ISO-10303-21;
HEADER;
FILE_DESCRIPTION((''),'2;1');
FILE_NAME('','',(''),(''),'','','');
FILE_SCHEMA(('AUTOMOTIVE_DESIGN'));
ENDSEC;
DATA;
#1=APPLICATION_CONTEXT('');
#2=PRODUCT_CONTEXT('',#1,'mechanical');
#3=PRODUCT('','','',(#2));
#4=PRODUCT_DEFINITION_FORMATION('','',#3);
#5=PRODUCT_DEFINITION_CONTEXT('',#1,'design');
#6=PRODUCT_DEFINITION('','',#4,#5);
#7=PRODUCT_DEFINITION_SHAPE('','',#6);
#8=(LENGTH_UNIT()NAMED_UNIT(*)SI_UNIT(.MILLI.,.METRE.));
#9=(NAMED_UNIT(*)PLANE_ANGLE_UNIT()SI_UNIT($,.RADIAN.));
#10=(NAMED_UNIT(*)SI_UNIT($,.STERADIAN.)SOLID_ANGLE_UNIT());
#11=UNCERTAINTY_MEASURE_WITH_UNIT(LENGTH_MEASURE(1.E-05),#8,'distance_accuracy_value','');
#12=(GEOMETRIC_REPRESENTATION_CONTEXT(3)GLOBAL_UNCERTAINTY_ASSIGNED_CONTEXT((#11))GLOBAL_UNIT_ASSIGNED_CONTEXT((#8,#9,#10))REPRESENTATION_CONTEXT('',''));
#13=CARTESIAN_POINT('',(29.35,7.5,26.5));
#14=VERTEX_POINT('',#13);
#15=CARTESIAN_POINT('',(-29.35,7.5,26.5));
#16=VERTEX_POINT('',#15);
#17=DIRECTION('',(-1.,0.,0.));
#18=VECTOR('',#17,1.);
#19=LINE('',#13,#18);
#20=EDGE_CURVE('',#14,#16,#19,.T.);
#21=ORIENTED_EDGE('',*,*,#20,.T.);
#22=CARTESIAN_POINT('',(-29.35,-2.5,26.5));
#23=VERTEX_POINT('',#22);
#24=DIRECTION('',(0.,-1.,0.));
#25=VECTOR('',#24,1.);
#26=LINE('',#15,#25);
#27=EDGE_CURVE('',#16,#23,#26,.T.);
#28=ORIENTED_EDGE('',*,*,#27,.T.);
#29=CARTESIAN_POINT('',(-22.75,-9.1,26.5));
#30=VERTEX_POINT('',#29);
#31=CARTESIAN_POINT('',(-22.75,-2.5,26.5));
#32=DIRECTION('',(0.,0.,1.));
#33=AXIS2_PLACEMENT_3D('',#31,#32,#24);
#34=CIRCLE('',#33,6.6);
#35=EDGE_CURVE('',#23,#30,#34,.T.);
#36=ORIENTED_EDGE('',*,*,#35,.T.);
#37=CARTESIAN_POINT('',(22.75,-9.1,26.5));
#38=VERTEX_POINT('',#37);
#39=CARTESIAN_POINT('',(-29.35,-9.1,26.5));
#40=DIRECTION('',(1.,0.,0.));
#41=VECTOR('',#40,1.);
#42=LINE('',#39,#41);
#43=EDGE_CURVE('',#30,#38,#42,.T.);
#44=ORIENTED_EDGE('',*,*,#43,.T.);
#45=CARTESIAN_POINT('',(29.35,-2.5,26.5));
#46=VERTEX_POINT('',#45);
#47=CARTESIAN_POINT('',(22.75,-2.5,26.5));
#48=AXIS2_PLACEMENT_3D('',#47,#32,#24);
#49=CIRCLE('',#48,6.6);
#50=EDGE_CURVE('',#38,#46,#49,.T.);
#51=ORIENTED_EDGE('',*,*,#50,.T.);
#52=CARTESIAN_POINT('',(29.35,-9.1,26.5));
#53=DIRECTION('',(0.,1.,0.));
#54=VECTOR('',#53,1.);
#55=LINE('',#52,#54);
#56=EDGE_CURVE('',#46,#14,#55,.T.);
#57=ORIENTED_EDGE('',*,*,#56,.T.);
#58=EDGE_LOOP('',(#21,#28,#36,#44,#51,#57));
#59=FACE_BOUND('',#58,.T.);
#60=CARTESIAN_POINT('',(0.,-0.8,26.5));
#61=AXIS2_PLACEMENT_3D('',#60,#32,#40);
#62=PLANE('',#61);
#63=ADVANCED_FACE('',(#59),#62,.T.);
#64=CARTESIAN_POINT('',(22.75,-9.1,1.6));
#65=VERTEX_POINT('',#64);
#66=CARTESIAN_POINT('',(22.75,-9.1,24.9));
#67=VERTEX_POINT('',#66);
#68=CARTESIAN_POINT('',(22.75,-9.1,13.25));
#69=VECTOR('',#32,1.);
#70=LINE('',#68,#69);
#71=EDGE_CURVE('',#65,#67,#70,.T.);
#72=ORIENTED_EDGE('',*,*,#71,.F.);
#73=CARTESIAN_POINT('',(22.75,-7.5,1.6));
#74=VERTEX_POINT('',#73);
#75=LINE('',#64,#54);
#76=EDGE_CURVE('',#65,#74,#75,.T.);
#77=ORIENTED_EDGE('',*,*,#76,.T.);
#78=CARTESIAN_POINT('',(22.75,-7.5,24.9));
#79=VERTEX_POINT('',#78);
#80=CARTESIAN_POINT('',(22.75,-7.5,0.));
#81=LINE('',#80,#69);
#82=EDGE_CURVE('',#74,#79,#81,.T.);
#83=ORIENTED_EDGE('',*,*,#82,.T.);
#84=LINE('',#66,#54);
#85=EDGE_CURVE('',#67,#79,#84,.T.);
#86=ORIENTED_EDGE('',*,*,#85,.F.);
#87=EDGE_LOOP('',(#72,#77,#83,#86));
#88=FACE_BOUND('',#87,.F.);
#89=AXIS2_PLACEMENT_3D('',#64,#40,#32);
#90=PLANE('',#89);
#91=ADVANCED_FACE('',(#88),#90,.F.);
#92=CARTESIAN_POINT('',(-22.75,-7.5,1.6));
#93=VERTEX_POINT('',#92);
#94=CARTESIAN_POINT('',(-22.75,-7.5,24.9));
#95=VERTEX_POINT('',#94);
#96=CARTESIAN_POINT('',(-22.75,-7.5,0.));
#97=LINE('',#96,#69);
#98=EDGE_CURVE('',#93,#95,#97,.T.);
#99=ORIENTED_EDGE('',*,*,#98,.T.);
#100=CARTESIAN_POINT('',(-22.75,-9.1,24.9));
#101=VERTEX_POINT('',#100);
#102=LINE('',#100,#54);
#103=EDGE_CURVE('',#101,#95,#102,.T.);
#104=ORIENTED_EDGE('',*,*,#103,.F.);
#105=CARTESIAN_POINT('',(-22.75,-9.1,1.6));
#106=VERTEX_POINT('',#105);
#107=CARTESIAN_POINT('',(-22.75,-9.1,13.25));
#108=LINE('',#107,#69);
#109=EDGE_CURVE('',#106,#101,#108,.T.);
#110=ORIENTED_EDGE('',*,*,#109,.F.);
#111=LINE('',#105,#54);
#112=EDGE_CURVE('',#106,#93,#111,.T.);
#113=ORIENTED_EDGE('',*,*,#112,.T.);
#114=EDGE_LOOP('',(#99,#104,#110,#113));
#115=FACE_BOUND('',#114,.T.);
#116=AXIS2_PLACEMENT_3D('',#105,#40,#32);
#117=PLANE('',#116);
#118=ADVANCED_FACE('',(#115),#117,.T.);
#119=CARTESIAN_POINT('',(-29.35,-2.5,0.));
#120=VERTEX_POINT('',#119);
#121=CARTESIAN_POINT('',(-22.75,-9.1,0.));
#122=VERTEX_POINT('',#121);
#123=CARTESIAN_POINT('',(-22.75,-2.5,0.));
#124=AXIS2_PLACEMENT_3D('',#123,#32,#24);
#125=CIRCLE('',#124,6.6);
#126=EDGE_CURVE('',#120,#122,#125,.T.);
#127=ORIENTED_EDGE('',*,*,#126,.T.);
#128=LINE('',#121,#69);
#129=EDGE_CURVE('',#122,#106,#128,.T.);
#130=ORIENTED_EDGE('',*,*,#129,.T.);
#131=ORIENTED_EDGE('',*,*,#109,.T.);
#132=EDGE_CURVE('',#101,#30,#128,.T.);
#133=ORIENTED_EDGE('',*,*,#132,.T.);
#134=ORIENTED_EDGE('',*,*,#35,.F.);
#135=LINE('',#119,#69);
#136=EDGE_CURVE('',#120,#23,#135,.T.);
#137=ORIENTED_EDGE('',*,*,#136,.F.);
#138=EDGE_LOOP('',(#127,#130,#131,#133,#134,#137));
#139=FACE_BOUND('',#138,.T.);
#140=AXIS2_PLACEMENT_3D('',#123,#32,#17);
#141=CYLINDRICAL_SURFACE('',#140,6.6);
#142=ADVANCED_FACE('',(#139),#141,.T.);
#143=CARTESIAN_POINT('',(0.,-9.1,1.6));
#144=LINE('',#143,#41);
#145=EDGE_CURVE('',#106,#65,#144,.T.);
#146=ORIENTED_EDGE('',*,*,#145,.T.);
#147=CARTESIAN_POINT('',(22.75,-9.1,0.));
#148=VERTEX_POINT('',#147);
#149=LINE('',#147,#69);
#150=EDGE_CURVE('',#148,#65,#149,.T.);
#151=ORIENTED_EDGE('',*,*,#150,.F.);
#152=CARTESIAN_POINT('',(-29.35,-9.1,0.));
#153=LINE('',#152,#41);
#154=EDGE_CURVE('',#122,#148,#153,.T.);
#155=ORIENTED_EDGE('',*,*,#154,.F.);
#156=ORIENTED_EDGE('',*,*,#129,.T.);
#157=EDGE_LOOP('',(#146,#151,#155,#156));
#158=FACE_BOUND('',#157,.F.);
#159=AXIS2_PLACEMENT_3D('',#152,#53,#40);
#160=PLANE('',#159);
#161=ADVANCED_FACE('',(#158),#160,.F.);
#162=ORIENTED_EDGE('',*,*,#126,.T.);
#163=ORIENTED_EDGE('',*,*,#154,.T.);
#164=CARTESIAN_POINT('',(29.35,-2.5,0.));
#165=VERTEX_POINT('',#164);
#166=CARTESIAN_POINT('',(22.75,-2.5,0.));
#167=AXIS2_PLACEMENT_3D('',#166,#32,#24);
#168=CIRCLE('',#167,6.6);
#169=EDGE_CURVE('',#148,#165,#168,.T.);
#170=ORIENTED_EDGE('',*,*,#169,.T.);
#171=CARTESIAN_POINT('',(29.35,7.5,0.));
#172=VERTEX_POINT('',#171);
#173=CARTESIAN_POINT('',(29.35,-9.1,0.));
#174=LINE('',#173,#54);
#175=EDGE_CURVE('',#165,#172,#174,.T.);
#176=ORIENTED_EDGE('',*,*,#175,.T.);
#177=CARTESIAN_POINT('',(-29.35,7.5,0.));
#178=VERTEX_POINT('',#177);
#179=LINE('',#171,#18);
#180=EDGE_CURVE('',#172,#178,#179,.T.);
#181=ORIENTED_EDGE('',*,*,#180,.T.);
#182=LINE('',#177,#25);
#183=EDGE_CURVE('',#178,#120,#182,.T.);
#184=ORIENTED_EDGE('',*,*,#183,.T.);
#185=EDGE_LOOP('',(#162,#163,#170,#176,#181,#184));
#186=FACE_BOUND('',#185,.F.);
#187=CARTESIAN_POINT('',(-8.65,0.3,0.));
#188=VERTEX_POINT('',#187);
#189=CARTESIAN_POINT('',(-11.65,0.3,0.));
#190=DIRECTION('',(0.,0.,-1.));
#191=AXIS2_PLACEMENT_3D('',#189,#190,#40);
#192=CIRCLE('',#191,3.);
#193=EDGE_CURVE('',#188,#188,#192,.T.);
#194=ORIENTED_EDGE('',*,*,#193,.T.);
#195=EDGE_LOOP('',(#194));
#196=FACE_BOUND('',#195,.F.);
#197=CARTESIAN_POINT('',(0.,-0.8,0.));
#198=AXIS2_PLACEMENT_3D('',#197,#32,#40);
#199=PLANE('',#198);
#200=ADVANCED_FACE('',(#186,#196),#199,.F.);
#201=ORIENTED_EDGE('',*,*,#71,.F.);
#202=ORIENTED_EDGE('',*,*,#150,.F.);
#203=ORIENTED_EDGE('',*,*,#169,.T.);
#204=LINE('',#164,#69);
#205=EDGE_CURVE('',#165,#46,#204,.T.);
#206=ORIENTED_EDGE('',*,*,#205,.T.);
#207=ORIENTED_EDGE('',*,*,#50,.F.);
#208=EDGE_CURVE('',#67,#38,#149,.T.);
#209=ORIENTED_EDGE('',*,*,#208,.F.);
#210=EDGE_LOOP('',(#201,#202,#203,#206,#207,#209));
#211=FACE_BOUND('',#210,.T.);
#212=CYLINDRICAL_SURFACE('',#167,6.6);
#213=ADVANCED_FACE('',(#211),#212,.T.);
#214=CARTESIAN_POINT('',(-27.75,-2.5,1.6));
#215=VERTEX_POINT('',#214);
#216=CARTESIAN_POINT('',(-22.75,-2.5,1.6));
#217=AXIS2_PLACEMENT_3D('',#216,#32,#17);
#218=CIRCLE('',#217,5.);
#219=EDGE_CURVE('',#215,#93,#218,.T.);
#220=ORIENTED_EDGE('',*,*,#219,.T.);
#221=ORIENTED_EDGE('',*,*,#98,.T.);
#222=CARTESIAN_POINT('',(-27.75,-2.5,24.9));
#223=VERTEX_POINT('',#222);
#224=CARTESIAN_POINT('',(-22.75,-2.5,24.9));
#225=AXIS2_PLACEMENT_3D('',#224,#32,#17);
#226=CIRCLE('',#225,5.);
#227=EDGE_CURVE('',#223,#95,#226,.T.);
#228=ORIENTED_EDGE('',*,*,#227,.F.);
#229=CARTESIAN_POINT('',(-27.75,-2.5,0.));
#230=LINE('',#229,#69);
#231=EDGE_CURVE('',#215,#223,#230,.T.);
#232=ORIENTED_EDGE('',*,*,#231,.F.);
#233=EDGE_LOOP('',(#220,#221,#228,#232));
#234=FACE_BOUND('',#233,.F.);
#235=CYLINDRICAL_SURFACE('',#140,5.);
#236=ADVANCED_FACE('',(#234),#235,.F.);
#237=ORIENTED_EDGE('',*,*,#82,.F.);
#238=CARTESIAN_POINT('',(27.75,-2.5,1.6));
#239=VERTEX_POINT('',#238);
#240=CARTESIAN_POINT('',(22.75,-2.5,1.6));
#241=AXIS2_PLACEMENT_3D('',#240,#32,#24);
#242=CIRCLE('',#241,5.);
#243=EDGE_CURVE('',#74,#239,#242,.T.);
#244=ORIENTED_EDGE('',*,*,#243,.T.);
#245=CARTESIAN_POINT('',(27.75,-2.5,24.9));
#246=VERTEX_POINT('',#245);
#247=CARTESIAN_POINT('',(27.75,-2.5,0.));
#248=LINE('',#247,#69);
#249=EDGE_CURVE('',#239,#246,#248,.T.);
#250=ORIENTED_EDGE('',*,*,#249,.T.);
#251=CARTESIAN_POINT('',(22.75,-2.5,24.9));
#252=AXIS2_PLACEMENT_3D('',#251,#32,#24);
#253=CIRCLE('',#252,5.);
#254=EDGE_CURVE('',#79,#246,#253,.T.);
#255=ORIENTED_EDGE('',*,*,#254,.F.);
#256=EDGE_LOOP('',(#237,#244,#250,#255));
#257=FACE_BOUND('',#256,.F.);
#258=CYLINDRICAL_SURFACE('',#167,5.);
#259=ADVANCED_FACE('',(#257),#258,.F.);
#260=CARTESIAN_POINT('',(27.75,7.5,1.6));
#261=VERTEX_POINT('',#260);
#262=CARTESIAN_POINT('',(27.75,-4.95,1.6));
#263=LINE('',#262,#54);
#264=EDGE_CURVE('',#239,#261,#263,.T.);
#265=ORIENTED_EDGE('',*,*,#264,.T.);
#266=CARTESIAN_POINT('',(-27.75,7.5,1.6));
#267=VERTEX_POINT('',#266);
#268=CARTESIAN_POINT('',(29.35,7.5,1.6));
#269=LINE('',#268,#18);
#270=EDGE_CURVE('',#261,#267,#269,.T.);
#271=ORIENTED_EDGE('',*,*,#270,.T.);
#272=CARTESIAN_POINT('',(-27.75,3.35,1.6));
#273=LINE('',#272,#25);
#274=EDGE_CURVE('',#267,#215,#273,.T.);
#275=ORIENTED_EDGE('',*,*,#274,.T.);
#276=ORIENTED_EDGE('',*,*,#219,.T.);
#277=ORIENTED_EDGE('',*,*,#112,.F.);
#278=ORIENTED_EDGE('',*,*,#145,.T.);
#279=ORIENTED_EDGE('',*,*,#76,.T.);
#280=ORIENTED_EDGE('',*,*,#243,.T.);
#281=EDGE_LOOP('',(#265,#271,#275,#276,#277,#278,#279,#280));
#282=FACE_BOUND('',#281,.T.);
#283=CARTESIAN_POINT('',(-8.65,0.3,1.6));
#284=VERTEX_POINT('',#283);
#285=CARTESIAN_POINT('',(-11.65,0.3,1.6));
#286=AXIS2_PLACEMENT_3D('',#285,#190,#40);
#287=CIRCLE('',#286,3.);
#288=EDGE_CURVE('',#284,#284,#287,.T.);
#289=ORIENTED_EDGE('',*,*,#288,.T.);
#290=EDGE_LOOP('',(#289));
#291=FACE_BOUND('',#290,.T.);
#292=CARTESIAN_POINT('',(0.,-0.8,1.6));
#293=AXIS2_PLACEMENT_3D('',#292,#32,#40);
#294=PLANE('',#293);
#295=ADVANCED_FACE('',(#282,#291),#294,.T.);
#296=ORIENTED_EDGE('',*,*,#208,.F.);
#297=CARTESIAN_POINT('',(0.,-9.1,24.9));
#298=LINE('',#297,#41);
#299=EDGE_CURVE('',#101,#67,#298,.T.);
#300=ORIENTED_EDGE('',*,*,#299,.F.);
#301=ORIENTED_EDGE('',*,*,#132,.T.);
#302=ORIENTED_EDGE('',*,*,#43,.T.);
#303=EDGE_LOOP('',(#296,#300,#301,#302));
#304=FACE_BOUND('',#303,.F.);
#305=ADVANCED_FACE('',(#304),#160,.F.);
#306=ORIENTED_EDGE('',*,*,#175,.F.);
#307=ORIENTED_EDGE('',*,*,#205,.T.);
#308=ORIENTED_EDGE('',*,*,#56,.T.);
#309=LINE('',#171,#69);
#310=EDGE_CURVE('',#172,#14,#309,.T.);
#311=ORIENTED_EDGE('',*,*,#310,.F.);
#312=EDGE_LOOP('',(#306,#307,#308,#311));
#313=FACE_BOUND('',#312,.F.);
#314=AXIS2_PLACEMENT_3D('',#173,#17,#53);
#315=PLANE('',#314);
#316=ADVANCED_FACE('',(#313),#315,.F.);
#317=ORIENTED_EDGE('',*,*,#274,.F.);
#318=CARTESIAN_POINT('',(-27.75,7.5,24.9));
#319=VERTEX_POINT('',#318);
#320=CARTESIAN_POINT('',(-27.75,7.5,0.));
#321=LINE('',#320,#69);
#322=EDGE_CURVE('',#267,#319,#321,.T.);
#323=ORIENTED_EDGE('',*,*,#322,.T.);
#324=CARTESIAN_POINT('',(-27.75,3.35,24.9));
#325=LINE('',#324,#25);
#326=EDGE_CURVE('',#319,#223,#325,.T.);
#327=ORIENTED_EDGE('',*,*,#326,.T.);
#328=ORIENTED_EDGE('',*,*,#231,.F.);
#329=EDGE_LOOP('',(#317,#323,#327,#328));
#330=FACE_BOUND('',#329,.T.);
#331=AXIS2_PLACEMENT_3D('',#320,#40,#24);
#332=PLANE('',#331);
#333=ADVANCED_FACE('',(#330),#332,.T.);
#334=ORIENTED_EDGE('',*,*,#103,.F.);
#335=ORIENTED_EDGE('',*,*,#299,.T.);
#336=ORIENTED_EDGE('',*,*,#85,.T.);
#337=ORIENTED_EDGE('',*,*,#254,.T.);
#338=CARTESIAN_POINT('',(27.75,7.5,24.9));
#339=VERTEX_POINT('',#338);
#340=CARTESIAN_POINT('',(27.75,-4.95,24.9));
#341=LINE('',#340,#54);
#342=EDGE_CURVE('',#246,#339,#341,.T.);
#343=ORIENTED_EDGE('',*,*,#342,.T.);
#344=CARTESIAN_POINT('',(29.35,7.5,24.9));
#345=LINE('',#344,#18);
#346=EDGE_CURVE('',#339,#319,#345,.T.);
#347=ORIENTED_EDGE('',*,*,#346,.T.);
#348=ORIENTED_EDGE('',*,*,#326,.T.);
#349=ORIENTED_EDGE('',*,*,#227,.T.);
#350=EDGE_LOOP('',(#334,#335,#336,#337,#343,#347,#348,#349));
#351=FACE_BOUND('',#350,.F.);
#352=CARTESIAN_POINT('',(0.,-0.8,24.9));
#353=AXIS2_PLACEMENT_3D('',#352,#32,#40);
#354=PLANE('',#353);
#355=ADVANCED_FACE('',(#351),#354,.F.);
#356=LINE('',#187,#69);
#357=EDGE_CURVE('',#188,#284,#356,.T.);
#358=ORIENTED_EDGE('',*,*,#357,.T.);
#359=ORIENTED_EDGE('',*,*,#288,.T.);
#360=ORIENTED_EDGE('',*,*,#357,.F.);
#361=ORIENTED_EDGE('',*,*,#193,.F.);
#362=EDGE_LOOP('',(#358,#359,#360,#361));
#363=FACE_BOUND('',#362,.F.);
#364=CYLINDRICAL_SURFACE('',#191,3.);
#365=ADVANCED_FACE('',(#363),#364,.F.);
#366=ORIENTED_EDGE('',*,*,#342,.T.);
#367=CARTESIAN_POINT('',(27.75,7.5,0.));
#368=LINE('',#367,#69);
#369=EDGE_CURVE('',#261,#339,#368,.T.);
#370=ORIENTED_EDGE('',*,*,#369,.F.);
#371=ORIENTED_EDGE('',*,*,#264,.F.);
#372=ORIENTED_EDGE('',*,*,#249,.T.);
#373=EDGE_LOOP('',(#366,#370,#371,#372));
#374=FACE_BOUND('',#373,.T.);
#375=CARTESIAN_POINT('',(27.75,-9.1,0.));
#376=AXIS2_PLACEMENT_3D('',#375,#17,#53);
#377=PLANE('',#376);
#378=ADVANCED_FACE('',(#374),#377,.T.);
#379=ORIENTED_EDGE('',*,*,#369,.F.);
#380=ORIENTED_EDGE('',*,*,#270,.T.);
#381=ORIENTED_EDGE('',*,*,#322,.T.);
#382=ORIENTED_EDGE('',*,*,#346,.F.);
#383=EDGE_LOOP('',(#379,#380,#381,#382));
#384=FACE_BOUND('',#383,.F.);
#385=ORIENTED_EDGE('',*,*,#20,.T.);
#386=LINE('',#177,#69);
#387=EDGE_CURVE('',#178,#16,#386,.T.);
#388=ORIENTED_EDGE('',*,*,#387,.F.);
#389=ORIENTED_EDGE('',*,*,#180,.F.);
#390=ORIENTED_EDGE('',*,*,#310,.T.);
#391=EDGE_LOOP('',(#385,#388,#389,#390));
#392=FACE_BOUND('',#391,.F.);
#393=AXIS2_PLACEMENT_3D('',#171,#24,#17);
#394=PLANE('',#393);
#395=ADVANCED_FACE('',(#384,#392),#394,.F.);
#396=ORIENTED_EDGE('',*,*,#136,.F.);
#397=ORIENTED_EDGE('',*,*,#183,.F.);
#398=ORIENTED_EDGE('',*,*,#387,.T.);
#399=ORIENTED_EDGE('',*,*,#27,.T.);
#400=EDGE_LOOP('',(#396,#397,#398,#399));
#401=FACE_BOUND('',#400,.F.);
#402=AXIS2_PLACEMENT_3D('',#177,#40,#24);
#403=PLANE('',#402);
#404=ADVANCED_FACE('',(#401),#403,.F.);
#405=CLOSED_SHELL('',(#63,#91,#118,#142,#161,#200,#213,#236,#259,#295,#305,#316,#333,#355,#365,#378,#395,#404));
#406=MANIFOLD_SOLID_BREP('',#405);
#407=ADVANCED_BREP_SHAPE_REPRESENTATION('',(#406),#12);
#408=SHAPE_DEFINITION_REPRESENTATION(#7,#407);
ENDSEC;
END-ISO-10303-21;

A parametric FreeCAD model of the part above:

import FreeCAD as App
import Part
import Sketcher

V = App.Vector
Q = App.Units.Quantity


def edges_at(feature, points):
    """Names of the edges that pass closest to the given points."""
    edges = feature.Shape.Edges
    near = lambda p: min(range(len(edges)), key=lambda i: edges[i].distToShape(Part.Vertex(*p))[0])
    return sorted({f"Edge{near(p) + 1}" for p in points})


def faces_at(feature, points):
    """Names of the faces that lie closest to the given points."""
    faces = feature.Shape.Faces
    near = lambda p: min(range(len(faces)), key=lambda i: faces[i].distToShape(Part.Vertex(*p))[0])
    return sorted({f"Face{near(p) + 1}" for p in points})

doc = App.newDocument("Part")
body = doc.addObject("PartDesign::Body", "Body")

sketch1 = body.newObject("Sketcher::SketchObject", "Sketch")
sketch1.AttachmentSupport = (doc.getObject("XY_Plane"), [""])
sketch1.MapMode = "FlatFace"
sketch1.addGeometry([
    Part.LineSegment(V(-29, 8, 0), V(-29, -9, 0)),
    Part.LineSegment(V(-29, -9, 0), V(29, -9, 0)),
    Part.LineSegment(V(29, -9, 0), V(29, 8, 0)),
    Part.LineSegment(V(29, 8, 0), V(-29, 8, 0)),
], False)
sketch1.addConstraint([
    Sketcher.Constraint("Coincident", 0, 2, 1, 1),
    Sketcher.Constraint("Coincident", 1, 2, 2, 1),
    Sketcher.Constraint("Coincident", 2, 2, 3, 1),
    Sketcher.Constraint("Coincident", 3, 2, 0, 1),
    Sketcher.Constraint("Vertical", 0),
    Sketcher.Constraint("Horizontal", 1),
    Sketcher.Constraint("Vertical", 2),
    Sketcher.Constraint("Horizontal", 3),
    Sketcher.Constraint("DistanceX", 1, 1, 1, 2, Q("58.7 mm")),
    Sketcher.Constraint("DistanceY", 0, 2, 0, 1, Q("16.6 mm")),
    Sketcher.Constraint("DistanceY", 0, 2, -1, 1, Q("9.1 mm")),
    Sketcher.Constraint("DistanceX", 0, 2, -1, 1, Q("29.35 mm")),
])
pad1 = body.newObject("PartDesign::Pad", "Pad")
pad1.Profile = sketch1
pad1.Length = 26.5
doc.recompute()

fillet = body.newObject("PartDesign::Fillet", "Fillet")
fillet.Base = (pad1, edges_at(pad1, [(-29.35, -9.1, 13.25), (29.35, -9.1, 13.25)]))
fillet.Radius = 6.6
doc.recompute()

thickness = body.newObject("PartDesign::Thickness", "Thickness")
thickness.Base = (fillet, faces_at(fillet, [(0, 7.5, 13.25)]))
thickness.Value = 1.6
thickness.Reversed = True
thickness.Join = "Arc"

sketch2 = body.newObject("Sketcher::SketchObject", "Sketch001")
sketch2.AttachmentSupport = (doc.getObject("XY_Plane"), [""])
sketch2.MapMode = "FlatFace"
sketch2.addGeometry(Part.Circle(V(-11.7, 0.3, 0), V(0, 0, 1), 3), False)
sketch2.addConstraint([
    Sketcher.Constraint("Diameter", 0, Q("6 mm")),
    Sketcher.Constraint("DistanceY", -1, 1, 0, 3, Q("0.3 mm")),
    Sketcher.Constraint("DistanceX", 0, 3, -1, 1, Q("11.65 mm")),
])
pocket1 = body.newObject("PartDesign::Pocket", "Pocket")
pocket1.Profile = sketch2
pocket1.Length = 2
pocket1.Reversed = True

sketch3 = body.newObject("Sketcher::SketchObject", "Sketch002")
sketch3.AttachmentSupport = (doc.getObject("XZ_Plane"), [""])
sketch3.MapMode = "FlatFace"
sketch3.AttachmentOffset = App.Placement(V(0, 0, 9.1), App.Rotation())
sketch3.addGeometry([
    Part.LineSegment(V(-23, 25, 0), V(-23, 2, 0)),
    Part.LineSegment(V(-23, 2, 0), V(23, 2, 0)),
    Part.LineSegment(V(23, 2, 0), V(23, 25, 0)),
    Part.LineSegment(V(23, 25, 0), V(-23, 25, 0)),
], False)
sketch3.addConstraint([
    Sketcher.Constraint("Coincident", 0, 2, 1, 1),
    Sketcher.Constraint("Coincident", 1, 2, 2, 1),
    Sketcher.Constraint("Coincident", 2, 2, 3, 1),
    Sketcher.Constraint("Coincident", 3, 2, 0, 1),
    Sketcher.Constraint("Vertical", 0),
    Sketcher.Constraint("Horizontal", 1),
    Sketcher.Constraint("Vertical", 2),
    Sketcher.Constraint("Horizontal", 3),
    Sketcher.Constraint("DistanceX", 1, 1, 1, 2, Q("45.5 mm")),
    Sketcher.Constraint("DistanceY", 0, 2, 0, 1, Q("23.3 mm")),
    Sketcher.Constraint("DistanceY", -1, 1, 0, 2, Q("1.6 mm")),
    Sketcher.Constraint("DistanceX", 0, 2, -1, 1, Q("22.75 mm")),
])
pocket2 = body.newObject("PartDesign::Pocket", "Pocket001")
pocket2.Profile = sketch3
pocket2.Length = 2

doc.recompute()
